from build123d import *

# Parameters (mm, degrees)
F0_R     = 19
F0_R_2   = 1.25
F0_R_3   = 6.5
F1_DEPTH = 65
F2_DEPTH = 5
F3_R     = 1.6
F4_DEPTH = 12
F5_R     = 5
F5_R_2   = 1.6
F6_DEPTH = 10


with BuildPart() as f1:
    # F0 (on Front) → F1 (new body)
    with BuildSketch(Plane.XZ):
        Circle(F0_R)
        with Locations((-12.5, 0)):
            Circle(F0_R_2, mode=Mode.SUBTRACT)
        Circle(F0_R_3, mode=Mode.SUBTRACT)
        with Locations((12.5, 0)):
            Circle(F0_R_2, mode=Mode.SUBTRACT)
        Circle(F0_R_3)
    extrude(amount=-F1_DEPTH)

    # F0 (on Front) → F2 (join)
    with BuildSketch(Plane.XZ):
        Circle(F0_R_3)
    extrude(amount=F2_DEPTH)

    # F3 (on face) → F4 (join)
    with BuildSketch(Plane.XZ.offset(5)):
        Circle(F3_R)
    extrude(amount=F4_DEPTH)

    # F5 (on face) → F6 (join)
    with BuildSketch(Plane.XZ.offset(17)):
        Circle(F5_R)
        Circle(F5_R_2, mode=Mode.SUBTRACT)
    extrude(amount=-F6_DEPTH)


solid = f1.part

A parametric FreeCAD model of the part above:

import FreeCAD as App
import Part
import Sketcher

V = App.Vector

doc = App.newDocument("Part")
body = doc.addObject("PartDesign::Body", "Body")

# Sketch on XZ plane
sketch1 = doc.addObject("Sketcher::SketchObject", "Sketch")
body.addObject(sketch1)
sketch1.AttachmentSupport = (doc.XZ_Plane, [""])
sketch1.MapMode = "FlatFace"
sketch1.addGeometry([
    Part.Circle(V(0, 0, 0), V(0, 0, 1), 19),
    Part.Circle(V(-12.5, 0, 0), V(0, 0, 1), 1.2),
    Part.Circle(V(12.5, 0, 0), V(0, 0, 1), 1.2),
], False)
sketch1.addConstraint([
    Sketcher.Constraint("Coincident", 0, 3, -1, 1),
    Sketcher.Constraint("Equal", 1, 2),
    Sketcher.Constraint("Symmetric", 1, 3, 2, 3, -1, 1),
    Sketcher.Constraint("PointOnObject", 1, 3, -1),
    Sketcher.Constraint("Diameter", 0, 38.0),
    Sketcher.Constraint("Diameter", 1, 2.5),
    Sketcher.Constraint("DistanceX", 1, 3, 2, 3, 25.0),
])
pad1 = doc.addObject("PartDesign::Pad", "Pad")
body.addObject(pad1)
pad1.Profile = sketch1
pad1.Length = 65
pad1.Reversed = True

# Sketch on XZ plane
sketch2 = doc.addObject("Sketcher::SketchObject", "Sketch001")
body.addObject(sketch2)
sketch2.AttachmentSupport = (doc.XZ_Plane, [""])
sketch2.MapMode = "FlatFace"
sketch2.addGeometry(Part.Circle(V(0, 0, 0), V(0, 0, 1), 6), False)
sketch2.addConstraint([
    Sketcher.Constraint("Coincident", 0, 3, -1, 1),
    Sketcher.Constraint("Diameter", 0, 13.0),
])
pad2 = doc.addObject("PartDesign::Pad", "Pad001")
body.addObject(pad2)
pad2.Profile = sketch2
pad2.Length = 5

# Sketch on XZ plane
sketch3 = doc.addObject("Sketcher::SketchObject", "Sketch002")
body.addObject(sketch3)
sketch3.AttachmentSupport = (doc.XZ_Plane, [""])
sketch3.MapMode = "FlatFace"
sketch3.AttachmentOffset = App.Placement(V(0, 0, 5), App.Rotation())
sketch3.addGeometry(Part.Circle(V(0, 0, 0), V(0, 0, 1), 1.6), False)
sketch3.addConstraint([
    Sketcher.Constraint("Coincident", 0, 3, -1, 1),
    Sketcher.Constraint("Diameter", 0, 3.2),
])
pad3 = doc.addObject("PartDesign::Pad", "Pad002")
body.addObject(pad3)
pad3.Profile = sketch3
pad3.Length = 12

# Sketch on XZ plane
sketch4 = doc.addObject("Sketcher::SketchObject", "Sketch003")
body.addObject(sketch4)
sketch4.AttachmentSupport = (doc.XZ_Plane, [""])
sketch4.MapMode = "FlatFace"
sketch4.AttachmentOffset = App.Placement(V(0, 0, 17), App.Rotation())
sketch4.addGeometry([
    Part.Circle(V(0, 0, 0), V(0, 0, 1), 5),
    Part.Circle(V(0, 0, 0), V(0, 0, 1), 1.6),
], False)
sketch4.addConstraint([
    Sketcher.Constraint("Coincident", 0, 3, -1, 1),
    Sketcher.Constraint("Coincident", 1, 3, -1, 1),
    Sketcher.Constraint("Diameter", 0, 10.0),
    Sketcher.Constraint("Diameter", 1, 3.2),
])
pad4 = doc.addObject("PartDesign::Pad", "Pad003")
body.addObject(pad4)
pad4.Profile = sketch4
pad4.Length = 10
pad4.Reversed = True

doc.recompute()
